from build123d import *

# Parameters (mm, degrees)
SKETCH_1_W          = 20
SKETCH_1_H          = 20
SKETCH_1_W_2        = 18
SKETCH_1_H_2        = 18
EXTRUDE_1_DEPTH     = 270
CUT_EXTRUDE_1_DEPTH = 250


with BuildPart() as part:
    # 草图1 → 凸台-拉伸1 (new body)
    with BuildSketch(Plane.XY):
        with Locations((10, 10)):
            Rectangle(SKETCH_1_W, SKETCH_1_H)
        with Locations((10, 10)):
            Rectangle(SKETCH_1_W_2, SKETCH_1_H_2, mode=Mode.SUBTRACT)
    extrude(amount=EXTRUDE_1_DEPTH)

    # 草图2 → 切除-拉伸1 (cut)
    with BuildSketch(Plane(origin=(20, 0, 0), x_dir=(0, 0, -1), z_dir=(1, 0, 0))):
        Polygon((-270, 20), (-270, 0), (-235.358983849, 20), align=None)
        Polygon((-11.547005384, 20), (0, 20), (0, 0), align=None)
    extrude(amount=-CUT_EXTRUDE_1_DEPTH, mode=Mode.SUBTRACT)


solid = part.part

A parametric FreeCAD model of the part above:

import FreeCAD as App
import Part
import Sketcher
Q = App.Units.Quantity


def add_polygon(sketch, points):
    """Adds a closed chain of lines whose ends are joined by coincident constraints."""
    first, n = sketch.GeometryCount, len(points)
    for a, b in zip(points, points[1:] + points[:1]):
        sketch.addGeometry(Part.LineSegment(App.Vector(*a, 0), App.Vector(*b, 0)), False)
    for i in range(n):
        sketch.addConstraint(Sketcher.Constraint("Coincident", first + i, 2, first + (i + 1) % n, 1))

doc = App.newDocument("Part")
params = doc.addObject("Spreadsheet::Sheet", "Params")
for row, (alias, value) in enumerate([
    ("sketch1_width", "20 mm"),
    ("sketch1_width2", "18 mm"),
    ("pad1_length", "270 mm"),
    ("sketch2_width", "20 mm"),
    ("pocket1_length", "250 mm"),
], start=1):
    params.set(f"A{row}", alias)
    params.set(f"B{row}", "=" + value)
    params.setAlias(f"B{row}", alias)

body = doc.addObject("PartDesign::Body", "Body")

# Sketch on XY plane
sketch1 = body.newObject("Sketcher::SketchObject", "Sketch")
sketch1.AttachmentSupport = (doc.getObject("XY_Plane"), [""])
sketch1.MapMode = "FlatFace"
add_polygon(sketch1, [(0, 20), (0, 0), (20, 0), (20, 20)])  # lines 0-3
add_polygon(sketch1, [(19, 1), (1, 1), (1, 19), (19, 19)])  # lines 4-7
sketch1.addConstraint([
    Sketcher.Constraint("Vertical", 0),
    Sketcher.Constraint("Horizontal", 1),
    Sketcher.Constraint("Vertical", 2),
    Sketcher.Constraint("Horizontal", 3),
    Sketcher.Constraint("Horizontal", 4),
    Sketcher.Constraint("Vertical", 5),
    Sketcher.Constraint("Horizontal", 6),
    Sketcher.Constraint("Vertical", 7),
    Sketcher.Constraint("Coincident", 0, 2, -1, 1),
    Sketcher.Constraint("Equal", 3, 0),
    Sketcher.Constraint("Equal", 6, 5),
    Sketcher.Constraint("DistanceX", 1, 1, 1, 2, Q("20 mm")),
    Sketcher.Constraint("DistanceX", 4, 2, 4, 1, Q("18 mm")),
    Sketcher.Constraint("DistanceX", -1, 1, 4, 2, Q("1 mm")),
    Sketcher.Constraint("DistanceY", -1, 1, 4, 2, Q("1 mm")),
])
sketch1.setExpression("Constraints[19]", "Params.sketch1_width")
sketch1.setExpression("Constraints[20]", "Params.sketch1_width2")
pad1 = body.newObject("PartDesign::Pad", "Pad")
pad1.Profile = sketch1
pad1.setExpression("Length", "Params.pad1_length")

# Sketch on YZ plane
sketch2 = body.newObject("Sketcher::SketchObject", "Sketch001")
sketch2.AttachmentSupport = (doc.getObject("YZ_Plane"), [""])
sketch2.MapMode = "FlatFace"
sketch2.AttachmentOffset = App.Placement(App.Vector(0, 0, 20), App.Rotation())
add_polygon(sketch2, [(20, 270), (0, 270), (20, 235)])  # lines 0-2
add_polygon(sketch2, [(20, 0), (20, 12), (0, 0)])  # lines 3-5
sketch2.addConstraint([
    Sketcher.Constraint("Horizontal", 0),
    Sketcher.Constraint("Vertical", 2),
    Sketcher.Constraint("Vertical", 3),
    Sketcher.Constraint("Horizontal", 5),
    Sketcher.Constraint("Coincident", 4, 2, -1, 1),
    Sketcher.Constraint("PointOnObject", 0, 2, -2),
    Sketcher.Constraint("Perpendicular", 1, 4),
    Sketcher.Constraint("Vertical", 2, 2, 3, 2),
    Sketcher.Constraint("DistanceX", 0, 2, 0, 1, Q("20 mm")),
    Sketcher.Constraint("Angle", 1, Q("-60 deg")),
    Sketcher.Constraint("DistanceY", -1, 1, 0, 2, Q("270 mm")),
])
sketch2.setExpression("Constraints[14]", "Params.sketch2_width")
pocket1 = body.newObject("PartDesign::Pocket", "Pocket")
pocket1.Profile = sketch2
pocket1.setExpression("Length", "Params.pocket1_length")

doc.recompute()
